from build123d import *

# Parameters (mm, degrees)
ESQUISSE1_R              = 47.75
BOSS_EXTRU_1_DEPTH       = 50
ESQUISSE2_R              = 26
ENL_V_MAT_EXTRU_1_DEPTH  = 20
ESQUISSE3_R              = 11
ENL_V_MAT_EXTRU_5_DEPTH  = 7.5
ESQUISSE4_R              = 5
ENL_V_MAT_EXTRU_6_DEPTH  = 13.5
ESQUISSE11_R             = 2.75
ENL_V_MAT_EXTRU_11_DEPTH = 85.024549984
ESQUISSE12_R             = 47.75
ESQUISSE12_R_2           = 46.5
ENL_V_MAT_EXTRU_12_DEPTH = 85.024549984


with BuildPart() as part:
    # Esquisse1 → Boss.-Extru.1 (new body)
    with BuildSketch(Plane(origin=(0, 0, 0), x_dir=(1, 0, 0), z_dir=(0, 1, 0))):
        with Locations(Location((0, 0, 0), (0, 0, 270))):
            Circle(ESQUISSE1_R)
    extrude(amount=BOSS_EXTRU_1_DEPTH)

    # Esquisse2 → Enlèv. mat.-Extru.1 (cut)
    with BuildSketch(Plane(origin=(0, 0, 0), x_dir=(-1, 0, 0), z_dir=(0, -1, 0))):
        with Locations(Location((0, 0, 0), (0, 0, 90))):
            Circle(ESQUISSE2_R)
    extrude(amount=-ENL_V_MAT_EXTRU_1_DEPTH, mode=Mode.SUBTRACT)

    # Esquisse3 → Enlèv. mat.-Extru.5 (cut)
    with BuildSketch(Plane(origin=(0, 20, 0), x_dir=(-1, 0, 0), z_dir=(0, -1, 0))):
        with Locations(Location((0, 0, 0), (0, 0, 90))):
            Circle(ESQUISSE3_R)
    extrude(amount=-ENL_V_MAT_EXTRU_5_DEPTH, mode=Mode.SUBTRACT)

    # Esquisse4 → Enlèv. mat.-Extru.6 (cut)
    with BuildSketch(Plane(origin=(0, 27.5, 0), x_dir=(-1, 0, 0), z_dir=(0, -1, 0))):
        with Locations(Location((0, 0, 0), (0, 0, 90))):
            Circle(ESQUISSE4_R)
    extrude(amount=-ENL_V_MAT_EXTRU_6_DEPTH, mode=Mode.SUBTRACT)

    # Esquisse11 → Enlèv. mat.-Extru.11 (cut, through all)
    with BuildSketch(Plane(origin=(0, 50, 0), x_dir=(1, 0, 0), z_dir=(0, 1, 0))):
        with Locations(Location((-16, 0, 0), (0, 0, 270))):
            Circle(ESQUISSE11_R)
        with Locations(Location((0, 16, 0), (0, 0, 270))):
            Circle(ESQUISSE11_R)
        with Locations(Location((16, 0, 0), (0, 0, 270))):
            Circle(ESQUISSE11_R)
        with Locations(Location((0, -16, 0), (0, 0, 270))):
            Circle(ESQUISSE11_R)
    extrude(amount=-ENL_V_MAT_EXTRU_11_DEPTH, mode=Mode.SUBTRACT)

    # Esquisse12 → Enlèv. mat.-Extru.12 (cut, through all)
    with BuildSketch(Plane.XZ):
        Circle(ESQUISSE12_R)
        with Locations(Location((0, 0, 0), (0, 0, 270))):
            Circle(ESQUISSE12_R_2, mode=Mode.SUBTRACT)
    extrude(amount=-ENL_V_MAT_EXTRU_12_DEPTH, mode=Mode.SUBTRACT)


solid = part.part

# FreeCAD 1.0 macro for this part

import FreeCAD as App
import Part
import Sketcher
from FreeCAD import Vector

doc = App.newDocument("Part")
body = doc.addObject("PartDesign::Body", "Body")

# Sketch on XZ plane
sketch1 = body.newObject("Sketcher::SketchObject", "Sketch")
sketch1.AttachmentSupport = (doc.getObject("XZ_Plane"), [""])
sketch1.MapMode = "FlatFace"
sketch1.addGeometry(Part.Circle(Vector(0, 0, 0), Vector(0, 0, 1), 48), False)
sketch1.addConstraint(Sketcher.Constraint("Coincident", 0, 3, -1, 1))
sketch1.addConstraint(Sketcher.Constraint("Diameter", 0, 95.5))
pad1 = body.newObject("PartDesign::Pad", "Pad")
pad1.Profile = sketch1
pad1.Length = 50
pad1.Reversed = True

# Sketch on XZ plane
sketch2 = body.newObject("Sketcher::SketchObject", "Sketch001")
sketch2.AttachmentSupport = (doc.getObject("XZ_Plane"), [""])
sketch2.MapMode = "FlatFace"
sketch2.addGeometry(Part.Circle(Vector(0, 0, 0), Vector(0, 0, 1), 26), False)
sketch2.addConstraint(Sketcher.Constraint("Coincident", 0, 3, -1, 1))
sketch2.addConstraint(Sketcher.Constraint("Diameter", 0, 52.0))
pocket1 = body.newObject("PartDesign::Pocket", "Pocket")
pocket1.Profile = sketch2
pocket1.Length = 20

# Sketch on XZ plane
sketch3 = body.newObject("Sketcher::SketchObject", "Sketch002")
sketch3.AttachmentSupport = (doc.getObject("XZ_Plane"), [""])
sketch3.MapMode = "FlatFace"
sketch3.AttachmentOffset = App.Placement(Vector(0, 0, -20), App.Rotation())
sketch3.addGeometry(Part.Circle(Vector(0, 0, 0), Vector(0, 0, 1), 11), False)
sketch3.addConstraint(Sketcher.Constraint("Coincident", 0, 3, -1, 1))
sketch3.addConstraint(Sketcher.Constraint("Diameter", 0, 22.0))
pocket2 = body.newObject("PartDesign::Pocket", "Pocket001")
pocket2.Profile = sketch3
pocket2.Length = 7.5

# Sketch on XZ plane
sketch4 = body.newObject("Sketcher::SketchObject", "Sketch003")
sketch4.AttachmentSupport = (doc.getObject("XZ_Plane"), [""])
sketch4.MapMode = "FlatFace"
sketch4.AttachmentOffset = App.Placement(Vector(0, 0, -27.5), App.Rotation())
sketch4.addGeometry(Part.Circle(Vector(0, 0, 0), Vector(0, 0, 1), 5), False)
sketch4.addConstraint(Sketcher.Constraint("Coincident", 0, 3, -1, 1))
sketch4.addConstraint(Sketcher.Constraint("Diameter", 0, 10.0))
pocket3 = body.newObject("PartDesign::Pocket", "Pocket002")
pocket3.Profile = sketch4
pocket3.Length = 13.5

# Sketch on XZ plane
sketch5 = body.newObject("Sketcher::SketchObject", "Sketch004")
sketch5.AttachmentSupport = (doc.getObject("XZ_Plane"), [""])
sketch5.MapMode = "FlatFace"
sketch5.AttachmentOffset = App.Placement(Vector(0, 0, -50), App.Rotation())
sketch5.addGeometry(Part.Circle(Vector(-16, 0, 0), Vector(0, 0, 1), 2.8), False)
sketch5.addGeometry(Part.Circle(Vector(0, -16, 0), Vector(0, 0, 1), 2.8), False)
sketch5.addGeometry(Part.Circle(Vector(16, 0, 0), Vector(0, 0, 1), 2.8), False)
sketch5.addGeometry(Part.Circle(Vector(0, 16, 0), Vector(0, 0, 1), 2.8), False)
sketch5.addConstraint(Sketcher.Constraint("Equal", 0, 1))
sketch5.addConstraint(Sketcher.Constraint("Equal", 1, 2))
sketch5.addConstraint(Sketcher.Constraint("Equal", 2, 3))
sketch5.addConstraint(Sketcher.Constraint("Symmetric", 0, 3, 2, 3, -1, 1))
sketch5.addConstraint(Sketcher.Constraint("Symmetric", 1, 3, 3, 3, -1, 1))
sketch5.addConstraint(Sketcher.Constraint("PointOnObject", 0, 3, -1))
sketch5.addConstraint(Sketcher.Constraint("PointOnObject", 1, 3, -2))
sketch5.addConstraint(Sketcher.Constraint("Diameter", 0, 5.5))
sketch5.addConstraint(Sketcher.Constraint("DistanceX", 0, 3, -1, 1, 16.0))
sketch5.addConstraint(Sketcher.Constraint("DistanceY", 1, 3, -1, 1, 16.0))
pocket4 = body.newObject("PartDesign::Pocket", "Pocket003")
pocket4.Profile = sketch5
pocket4.Type = "ThroughAll"
pocket4.Reversed = True

# Sketch on XZ plane
sketch6 = body.newObject("Sketcher::SketchObject", "Sketch005")
sketch6.AttachmentSupport = (doc.getObject("XZ_Plane"), [""])
sketch6.MapMode = "FlatFace"
sketch6.addGeometry(Part.Circle(Vector(0, 0, 0), Vector(0, 0, 1), 48), False)
sketch6.addGeometry(Part.Circle(Vector(0, 0, 0), Vector(0, 0, 1), 46), False)
sketch6.addConstraint(Sketcher.Constraint("Coincident", 0, 3, -1, 1))
sketch6.addConstraint(Sketcher.Constraint("Coincident", 1, 3, -1, 1))
sketch6.addConstraint(Sketcher.Constraint("Diameter", 1, 93.0))
sketch6.addConstraint(Sketcher.Constraint("Diameter", 0, 95.5))
pocket5 = body.newObject("PartDesign::Pocket", "Pocket004")
pocket5.Profile = sketch6
pocket5.Type = "ThroughAll"

doc.recompute()
